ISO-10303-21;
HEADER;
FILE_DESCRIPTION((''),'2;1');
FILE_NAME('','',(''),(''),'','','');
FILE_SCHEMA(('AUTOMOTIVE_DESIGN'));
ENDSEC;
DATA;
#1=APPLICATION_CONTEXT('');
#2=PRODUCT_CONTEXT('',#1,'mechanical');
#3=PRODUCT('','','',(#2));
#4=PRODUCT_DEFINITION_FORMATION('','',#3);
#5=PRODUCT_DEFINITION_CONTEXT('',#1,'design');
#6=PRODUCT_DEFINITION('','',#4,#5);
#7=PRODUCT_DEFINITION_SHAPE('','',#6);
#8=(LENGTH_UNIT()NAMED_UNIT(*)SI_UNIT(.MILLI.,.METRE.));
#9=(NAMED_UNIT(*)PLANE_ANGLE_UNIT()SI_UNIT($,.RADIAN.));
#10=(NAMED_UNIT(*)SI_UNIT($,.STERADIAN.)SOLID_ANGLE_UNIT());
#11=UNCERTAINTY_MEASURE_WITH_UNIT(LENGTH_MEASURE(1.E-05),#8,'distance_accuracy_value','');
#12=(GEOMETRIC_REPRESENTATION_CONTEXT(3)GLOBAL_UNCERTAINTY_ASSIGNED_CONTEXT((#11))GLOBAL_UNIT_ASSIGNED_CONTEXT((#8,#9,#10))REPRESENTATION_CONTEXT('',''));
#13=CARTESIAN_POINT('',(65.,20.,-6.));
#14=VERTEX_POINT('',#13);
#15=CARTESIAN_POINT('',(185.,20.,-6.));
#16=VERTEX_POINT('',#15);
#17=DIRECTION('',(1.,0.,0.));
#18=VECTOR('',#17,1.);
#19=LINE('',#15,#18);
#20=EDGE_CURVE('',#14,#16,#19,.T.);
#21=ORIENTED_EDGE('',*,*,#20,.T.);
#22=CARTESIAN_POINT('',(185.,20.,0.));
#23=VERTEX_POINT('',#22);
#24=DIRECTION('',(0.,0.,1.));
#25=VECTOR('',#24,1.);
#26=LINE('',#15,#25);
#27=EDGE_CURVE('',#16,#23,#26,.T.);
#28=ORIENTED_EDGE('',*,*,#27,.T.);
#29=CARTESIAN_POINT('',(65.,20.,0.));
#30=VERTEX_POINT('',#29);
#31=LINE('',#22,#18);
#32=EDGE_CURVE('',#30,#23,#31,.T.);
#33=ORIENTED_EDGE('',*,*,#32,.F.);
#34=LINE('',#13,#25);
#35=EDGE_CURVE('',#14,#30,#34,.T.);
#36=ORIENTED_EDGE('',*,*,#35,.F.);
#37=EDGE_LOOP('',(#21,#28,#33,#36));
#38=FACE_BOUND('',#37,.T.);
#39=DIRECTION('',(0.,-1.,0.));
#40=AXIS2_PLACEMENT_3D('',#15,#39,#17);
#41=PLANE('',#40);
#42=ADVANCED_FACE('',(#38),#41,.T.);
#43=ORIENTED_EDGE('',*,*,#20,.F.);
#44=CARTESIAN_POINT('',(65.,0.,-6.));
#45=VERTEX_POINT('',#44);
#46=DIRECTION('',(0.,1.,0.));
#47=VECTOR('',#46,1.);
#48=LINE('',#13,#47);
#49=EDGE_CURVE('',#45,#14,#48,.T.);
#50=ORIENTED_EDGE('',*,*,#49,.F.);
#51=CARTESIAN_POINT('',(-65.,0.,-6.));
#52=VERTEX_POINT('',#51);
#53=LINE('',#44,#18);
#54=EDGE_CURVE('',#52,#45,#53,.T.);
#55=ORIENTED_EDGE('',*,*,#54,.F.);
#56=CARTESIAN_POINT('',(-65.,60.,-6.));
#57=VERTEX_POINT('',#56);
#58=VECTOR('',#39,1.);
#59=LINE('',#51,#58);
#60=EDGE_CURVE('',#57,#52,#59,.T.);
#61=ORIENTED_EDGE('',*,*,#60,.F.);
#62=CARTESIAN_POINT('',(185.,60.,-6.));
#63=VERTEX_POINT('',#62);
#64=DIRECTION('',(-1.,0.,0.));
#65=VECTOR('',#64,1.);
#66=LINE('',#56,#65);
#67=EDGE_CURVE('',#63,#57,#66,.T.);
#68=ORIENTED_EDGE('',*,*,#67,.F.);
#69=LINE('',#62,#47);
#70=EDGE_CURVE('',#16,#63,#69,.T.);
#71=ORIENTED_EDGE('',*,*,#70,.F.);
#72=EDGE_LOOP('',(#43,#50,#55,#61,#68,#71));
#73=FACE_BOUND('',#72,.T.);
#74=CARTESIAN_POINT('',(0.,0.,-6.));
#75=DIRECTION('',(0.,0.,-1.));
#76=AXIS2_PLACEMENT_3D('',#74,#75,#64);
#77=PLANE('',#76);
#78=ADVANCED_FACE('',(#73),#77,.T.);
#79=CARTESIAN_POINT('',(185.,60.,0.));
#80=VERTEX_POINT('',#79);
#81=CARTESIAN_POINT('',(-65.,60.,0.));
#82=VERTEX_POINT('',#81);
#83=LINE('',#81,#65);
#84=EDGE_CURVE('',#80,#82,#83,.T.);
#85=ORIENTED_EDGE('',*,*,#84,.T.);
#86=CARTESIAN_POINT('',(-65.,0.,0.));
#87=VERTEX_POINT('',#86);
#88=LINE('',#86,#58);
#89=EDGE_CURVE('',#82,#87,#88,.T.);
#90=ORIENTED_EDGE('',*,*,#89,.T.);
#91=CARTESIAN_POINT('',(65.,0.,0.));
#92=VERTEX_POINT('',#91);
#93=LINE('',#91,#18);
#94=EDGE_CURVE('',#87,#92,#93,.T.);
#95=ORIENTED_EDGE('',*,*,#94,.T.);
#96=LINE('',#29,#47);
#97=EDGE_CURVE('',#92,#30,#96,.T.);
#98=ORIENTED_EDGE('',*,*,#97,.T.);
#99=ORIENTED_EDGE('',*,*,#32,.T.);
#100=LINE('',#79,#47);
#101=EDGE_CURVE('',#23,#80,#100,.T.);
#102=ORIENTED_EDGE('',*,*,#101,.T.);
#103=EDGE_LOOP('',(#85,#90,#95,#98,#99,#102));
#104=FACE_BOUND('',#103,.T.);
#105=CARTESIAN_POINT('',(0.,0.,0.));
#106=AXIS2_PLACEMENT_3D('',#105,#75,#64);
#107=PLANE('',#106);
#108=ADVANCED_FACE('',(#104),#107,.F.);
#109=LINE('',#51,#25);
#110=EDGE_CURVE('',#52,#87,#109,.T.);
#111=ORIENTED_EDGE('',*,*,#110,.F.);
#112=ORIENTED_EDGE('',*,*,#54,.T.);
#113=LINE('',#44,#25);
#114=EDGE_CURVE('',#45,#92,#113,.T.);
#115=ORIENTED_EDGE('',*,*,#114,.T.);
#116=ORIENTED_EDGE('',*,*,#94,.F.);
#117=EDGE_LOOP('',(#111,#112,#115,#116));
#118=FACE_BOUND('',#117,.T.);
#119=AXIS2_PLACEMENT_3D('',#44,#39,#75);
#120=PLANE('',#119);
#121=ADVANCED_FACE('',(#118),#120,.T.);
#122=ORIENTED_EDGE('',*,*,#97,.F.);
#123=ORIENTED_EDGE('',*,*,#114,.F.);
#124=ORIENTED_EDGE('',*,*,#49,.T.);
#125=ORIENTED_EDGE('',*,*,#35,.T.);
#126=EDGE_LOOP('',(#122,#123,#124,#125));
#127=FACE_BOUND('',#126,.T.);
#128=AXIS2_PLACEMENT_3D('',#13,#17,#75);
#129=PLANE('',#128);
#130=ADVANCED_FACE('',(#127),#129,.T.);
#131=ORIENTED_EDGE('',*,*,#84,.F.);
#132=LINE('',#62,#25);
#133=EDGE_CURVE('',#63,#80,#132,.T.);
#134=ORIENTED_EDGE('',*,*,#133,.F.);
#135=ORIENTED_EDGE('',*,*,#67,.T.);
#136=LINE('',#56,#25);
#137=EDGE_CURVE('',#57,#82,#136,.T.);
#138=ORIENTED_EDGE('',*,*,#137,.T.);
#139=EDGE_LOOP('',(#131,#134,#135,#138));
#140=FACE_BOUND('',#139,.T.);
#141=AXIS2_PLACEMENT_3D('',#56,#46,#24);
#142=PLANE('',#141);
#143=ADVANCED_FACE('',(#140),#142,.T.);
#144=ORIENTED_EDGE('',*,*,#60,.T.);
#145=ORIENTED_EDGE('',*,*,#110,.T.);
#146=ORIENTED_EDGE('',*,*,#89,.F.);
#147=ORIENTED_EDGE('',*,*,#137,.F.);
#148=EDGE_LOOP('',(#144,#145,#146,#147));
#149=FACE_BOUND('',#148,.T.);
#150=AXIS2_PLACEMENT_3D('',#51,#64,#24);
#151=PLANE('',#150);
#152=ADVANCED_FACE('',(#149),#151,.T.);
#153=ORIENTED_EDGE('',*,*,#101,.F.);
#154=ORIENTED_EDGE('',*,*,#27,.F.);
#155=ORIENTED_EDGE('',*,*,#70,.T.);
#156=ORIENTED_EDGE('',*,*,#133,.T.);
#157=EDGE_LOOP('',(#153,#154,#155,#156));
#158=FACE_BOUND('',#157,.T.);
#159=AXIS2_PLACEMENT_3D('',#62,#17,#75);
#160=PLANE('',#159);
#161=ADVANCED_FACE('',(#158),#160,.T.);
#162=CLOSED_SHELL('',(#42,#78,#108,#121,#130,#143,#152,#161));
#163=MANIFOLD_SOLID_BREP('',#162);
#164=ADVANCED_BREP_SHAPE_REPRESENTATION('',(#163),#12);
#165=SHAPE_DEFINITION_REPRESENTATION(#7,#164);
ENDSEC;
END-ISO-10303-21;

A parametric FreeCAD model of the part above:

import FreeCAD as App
import Part
import Sketcher
Q = App.Units.Quantity


def add_polygon(sketch, points):
    """Adds a closed chain of lines whose ends are joined by coincident constraints."""
    first, n = sketch.GeometryCount, len(points)
    for a, b in zip(points, points[1:] + points[:1]):
        sketch.addGeometry(Part.LineSegment(App.Vector(*a, 0), App.Vector(*b, 0)), False)
    for i in range(n):
        sketch.addConstraint(Sketcher.Constraint("Coincident", first + i, 2, first + (i + 1) % n, 1))

doc = App.newDocument("Part")
params = doc.addObject("Spreadsheet::Sheet", "Params")
for row, (alias, value) in enumerate([
    ("sketch1_width", "130 mm"),
    ("sketch1_width2", "120 mm"),
    ("sketch1_height", "60 mm"),
    ("sketch1_height2", "20 mm"),
    ("pad1_length", "6 mm"),
], start=1):
    params.set(f"A{row}", alias)
    params.set(f"B{row}", "=" + value)
    params.setAlias(f"B{row}", alias)

body = doc.addObject("PartDesign::Body", "Body")

sketch1 = body.newObject("Sketcher::SketchObject", "Sketch")
sketch1.AttachmentSupport = (doc.getObject("XY_Plane"), [""])
sketch1.MapMode = "FlatFace"
add_polygon(sketch1, [(-65, 60), (-65, 0), (65, 0), (65, 20), (185, 20), (185, 60)])
sketch1.addConstraint(Sketcher.Constraint("Vertical", 0))
sketch1.addConstraint(Sketcher.Constraint("Horizontal", 1))
sketch1.addConstraint(Sketcher.Constraint("Vertical", 2))
sketch1.addConstraint(Sketcher.Constraint("Horizontal", 3))
sketch1.addConstraint(Sketcher.Constraint("Vertical", 4))
sketch1.addConstraint(Sketcher.Constraint("Horizontal", 5))
sketch1.addConstraint(Sketcher.Constraint("Symmetric", 0, 2, 1, 2, -1, 1))
sketch1.addConstraint(Sketcher.Constraint("DistanceX", 1, 1, 1, 2, Q("130 mm")))
sketch1.addConstraint(Sketcher.Constraint("DistanceX", 3, 1, 3, 2, Q("120 mm")))
sketch1.addConstraint(Sketcher.Constraint("DistanceY", 0, 2, 0, 1, Q("60 mm")))
sketch1.addConstraint(Sketcher.Constraint("DistanceY", 2, 1, 2, 2, Q("20 mm")))
sketch1.setExpression("Constraints[13]", "Params.sketch1_width")
sketch1.setExpression("Constraints[14]", "Params.sketch1_width2")
sketch1.setExpression("Constraints[15]", "Params.sketch1_height")
sketch1.setExpression("Constraints[16]", "Params.sketch1_height2")
pad1 = body.newObject("PartDesign::Pad", "Pad")
pad1.Profile = sketch1
pad1.setExpression("Length", "Params.pad1_length")
pad1.Reversed = True

doc.recompute()
